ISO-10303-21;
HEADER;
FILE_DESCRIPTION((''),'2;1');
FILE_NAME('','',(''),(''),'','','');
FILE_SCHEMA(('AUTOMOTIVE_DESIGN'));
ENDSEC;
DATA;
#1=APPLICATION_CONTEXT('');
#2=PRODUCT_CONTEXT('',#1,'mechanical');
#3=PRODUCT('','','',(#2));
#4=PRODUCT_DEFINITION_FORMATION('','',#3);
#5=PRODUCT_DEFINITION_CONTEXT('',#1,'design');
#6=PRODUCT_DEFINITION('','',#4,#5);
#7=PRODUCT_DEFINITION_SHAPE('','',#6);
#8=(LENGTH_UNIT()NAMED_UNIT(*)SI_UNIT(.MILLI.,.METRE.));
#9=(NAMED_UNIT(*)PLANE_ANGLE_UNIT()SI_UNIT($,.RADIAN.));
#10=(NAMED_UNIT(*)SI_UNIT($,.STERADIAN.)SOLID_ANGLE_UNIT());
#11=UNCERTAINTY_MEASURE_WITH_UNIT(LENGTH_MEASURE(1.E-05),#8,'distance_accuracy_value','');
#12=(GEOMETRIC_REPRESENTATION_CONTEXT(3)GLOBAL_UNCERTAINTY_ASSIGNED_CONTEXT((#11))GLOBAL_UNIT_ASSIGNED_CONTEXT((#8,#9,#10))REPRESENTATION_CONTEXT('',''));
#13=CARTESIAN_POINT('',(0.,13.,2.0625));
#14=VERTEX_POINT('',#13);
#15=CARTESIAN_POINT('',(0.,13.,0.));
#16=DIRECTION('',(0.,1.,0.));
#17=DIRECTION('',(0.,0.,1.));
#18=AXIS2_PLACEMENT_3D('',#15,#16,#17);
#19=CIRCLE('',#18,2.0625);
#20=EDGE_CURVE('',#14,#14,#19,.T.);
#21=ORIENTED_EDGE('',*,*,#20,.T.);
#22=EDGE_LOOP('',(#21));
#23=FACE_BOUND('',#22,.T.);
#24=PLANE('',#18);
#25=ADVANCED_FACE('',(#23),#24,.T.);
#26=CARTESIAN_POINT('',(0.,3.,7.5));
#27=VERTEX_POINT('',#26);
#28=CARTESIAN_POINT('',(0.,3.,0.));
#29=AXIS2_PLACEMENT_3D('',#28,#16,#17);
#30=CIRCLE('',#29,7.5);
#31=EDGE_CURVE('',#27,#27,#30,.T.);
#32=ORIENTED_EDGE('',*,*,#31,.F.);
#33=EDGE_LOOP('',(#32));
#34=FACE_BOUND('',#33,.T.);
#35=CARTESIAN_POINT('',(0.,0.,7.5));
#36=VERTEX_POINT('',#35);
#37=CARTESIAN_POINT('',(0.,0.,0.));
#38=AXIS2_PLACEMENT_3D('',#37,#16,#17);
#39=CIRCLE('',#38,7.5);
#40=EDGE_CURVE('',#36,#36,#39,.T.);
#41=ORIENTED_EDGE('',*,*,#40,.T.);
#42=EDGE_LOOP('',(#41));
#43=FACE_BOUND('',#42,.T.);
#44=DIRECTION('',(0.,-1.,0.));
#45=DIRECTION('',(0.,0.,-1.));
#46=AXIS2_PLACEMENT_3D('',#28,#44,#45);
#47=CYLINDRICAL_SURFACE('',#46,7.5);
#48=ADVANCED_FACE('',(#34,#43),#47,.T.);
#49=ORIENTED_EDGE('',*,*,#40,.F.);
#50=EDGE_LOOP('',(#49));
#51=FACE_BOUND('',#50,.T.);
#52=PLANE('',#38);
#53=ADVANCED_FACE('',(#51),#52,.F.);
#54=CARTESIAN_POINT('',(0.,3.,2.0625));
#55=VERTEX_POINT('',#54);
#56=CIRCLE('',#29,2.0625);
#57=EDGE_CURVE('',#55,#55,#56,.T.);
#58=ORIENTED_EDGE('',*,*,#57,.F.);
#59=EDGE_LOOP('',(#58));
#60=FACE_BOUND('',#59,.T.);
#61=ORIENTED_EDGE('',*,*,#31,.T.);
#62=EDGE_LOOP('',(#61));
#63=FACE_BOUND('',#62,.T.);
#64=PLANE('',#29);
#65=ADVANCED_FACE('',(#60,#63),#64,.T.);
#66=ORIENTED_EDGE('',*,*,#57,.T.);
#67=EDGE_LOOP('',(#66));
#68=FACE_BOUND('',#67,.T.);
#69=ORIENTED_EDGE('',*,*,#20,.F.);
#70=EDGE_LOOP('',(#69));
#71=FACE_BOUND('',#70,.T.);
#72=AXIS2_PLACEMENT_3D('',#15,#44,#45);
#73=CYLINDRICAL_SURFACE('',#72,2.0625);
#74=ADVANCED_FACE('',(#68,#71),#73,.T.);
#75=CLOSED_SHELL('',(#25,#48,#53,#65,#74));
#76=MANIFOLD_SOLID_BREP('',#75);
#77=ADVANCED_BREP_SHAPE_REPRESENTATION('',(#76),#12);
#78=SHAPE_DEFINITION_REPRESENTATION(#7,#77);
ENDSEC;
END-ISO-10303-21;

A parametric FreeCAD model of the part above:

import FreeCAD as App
import Part
import Sketcher

V = App.Vector
Q = App.Units.Quantity

doc = App.newDocument("Part")
body = doc.addObject("PartDesign::Body", "Body")

# Sketch on XZ plane
sketch1 = doc.addObject("Sketcher::SketchObject", "Sketch")
body.addObject(sketch1)
sketch1.AttachmentSupport = (doc.XZ_Plane, [""])
sketch1.MapMode = "FlatFace"
sketch1.addGeometry(Part.Circle(V(0, 0, 0), V(0, 0, 1), 7.5), False)
sketch1.addConstraint([
    Sketcher.Constraint("Coincident", 0, 3, -1, 1),
    Sketcher.Constraint("Diameter", 0, Q("15 mm")),
])
pad1 = doc.addObject("PartDesign::Pad", "Pad")
body.addObject(pad1)
pad1.Profile = sketch1
pad1.Length = 3
pad1.Reversed = True

# Sketch on XZ plane
sketch2 = doc.addObject("Sketcher::SketchObject", "Sketch001")
body.addObject(sketch2)
sketch2.AttachmentSupport = (doc.XZ_Plane, [""])
sketch2.MapMode = "FlatFace"
sketch2.AttachmentOffset = App.Placement(V(0, 0, -3), App.Rotation())
sketch2.addGeometry(Part.Circle(V(0, 0, 0), V(0, 0, 1), 2.0625), False)
sketch2.addConstraint([
    Sketcher.Constraint("Coincident", 0, 3, -1, 1),
    Sketcher.Constraint("Diameter", 0, Q("4.125 mm")),
])
pad2 = doc.addObject("PartDesign::Pad", "Pad001")
body.addObject(pad2)
pad2.Profile = sketch2
pad2.Length = 10
pad2.Reversed = True

doc.recompute()
